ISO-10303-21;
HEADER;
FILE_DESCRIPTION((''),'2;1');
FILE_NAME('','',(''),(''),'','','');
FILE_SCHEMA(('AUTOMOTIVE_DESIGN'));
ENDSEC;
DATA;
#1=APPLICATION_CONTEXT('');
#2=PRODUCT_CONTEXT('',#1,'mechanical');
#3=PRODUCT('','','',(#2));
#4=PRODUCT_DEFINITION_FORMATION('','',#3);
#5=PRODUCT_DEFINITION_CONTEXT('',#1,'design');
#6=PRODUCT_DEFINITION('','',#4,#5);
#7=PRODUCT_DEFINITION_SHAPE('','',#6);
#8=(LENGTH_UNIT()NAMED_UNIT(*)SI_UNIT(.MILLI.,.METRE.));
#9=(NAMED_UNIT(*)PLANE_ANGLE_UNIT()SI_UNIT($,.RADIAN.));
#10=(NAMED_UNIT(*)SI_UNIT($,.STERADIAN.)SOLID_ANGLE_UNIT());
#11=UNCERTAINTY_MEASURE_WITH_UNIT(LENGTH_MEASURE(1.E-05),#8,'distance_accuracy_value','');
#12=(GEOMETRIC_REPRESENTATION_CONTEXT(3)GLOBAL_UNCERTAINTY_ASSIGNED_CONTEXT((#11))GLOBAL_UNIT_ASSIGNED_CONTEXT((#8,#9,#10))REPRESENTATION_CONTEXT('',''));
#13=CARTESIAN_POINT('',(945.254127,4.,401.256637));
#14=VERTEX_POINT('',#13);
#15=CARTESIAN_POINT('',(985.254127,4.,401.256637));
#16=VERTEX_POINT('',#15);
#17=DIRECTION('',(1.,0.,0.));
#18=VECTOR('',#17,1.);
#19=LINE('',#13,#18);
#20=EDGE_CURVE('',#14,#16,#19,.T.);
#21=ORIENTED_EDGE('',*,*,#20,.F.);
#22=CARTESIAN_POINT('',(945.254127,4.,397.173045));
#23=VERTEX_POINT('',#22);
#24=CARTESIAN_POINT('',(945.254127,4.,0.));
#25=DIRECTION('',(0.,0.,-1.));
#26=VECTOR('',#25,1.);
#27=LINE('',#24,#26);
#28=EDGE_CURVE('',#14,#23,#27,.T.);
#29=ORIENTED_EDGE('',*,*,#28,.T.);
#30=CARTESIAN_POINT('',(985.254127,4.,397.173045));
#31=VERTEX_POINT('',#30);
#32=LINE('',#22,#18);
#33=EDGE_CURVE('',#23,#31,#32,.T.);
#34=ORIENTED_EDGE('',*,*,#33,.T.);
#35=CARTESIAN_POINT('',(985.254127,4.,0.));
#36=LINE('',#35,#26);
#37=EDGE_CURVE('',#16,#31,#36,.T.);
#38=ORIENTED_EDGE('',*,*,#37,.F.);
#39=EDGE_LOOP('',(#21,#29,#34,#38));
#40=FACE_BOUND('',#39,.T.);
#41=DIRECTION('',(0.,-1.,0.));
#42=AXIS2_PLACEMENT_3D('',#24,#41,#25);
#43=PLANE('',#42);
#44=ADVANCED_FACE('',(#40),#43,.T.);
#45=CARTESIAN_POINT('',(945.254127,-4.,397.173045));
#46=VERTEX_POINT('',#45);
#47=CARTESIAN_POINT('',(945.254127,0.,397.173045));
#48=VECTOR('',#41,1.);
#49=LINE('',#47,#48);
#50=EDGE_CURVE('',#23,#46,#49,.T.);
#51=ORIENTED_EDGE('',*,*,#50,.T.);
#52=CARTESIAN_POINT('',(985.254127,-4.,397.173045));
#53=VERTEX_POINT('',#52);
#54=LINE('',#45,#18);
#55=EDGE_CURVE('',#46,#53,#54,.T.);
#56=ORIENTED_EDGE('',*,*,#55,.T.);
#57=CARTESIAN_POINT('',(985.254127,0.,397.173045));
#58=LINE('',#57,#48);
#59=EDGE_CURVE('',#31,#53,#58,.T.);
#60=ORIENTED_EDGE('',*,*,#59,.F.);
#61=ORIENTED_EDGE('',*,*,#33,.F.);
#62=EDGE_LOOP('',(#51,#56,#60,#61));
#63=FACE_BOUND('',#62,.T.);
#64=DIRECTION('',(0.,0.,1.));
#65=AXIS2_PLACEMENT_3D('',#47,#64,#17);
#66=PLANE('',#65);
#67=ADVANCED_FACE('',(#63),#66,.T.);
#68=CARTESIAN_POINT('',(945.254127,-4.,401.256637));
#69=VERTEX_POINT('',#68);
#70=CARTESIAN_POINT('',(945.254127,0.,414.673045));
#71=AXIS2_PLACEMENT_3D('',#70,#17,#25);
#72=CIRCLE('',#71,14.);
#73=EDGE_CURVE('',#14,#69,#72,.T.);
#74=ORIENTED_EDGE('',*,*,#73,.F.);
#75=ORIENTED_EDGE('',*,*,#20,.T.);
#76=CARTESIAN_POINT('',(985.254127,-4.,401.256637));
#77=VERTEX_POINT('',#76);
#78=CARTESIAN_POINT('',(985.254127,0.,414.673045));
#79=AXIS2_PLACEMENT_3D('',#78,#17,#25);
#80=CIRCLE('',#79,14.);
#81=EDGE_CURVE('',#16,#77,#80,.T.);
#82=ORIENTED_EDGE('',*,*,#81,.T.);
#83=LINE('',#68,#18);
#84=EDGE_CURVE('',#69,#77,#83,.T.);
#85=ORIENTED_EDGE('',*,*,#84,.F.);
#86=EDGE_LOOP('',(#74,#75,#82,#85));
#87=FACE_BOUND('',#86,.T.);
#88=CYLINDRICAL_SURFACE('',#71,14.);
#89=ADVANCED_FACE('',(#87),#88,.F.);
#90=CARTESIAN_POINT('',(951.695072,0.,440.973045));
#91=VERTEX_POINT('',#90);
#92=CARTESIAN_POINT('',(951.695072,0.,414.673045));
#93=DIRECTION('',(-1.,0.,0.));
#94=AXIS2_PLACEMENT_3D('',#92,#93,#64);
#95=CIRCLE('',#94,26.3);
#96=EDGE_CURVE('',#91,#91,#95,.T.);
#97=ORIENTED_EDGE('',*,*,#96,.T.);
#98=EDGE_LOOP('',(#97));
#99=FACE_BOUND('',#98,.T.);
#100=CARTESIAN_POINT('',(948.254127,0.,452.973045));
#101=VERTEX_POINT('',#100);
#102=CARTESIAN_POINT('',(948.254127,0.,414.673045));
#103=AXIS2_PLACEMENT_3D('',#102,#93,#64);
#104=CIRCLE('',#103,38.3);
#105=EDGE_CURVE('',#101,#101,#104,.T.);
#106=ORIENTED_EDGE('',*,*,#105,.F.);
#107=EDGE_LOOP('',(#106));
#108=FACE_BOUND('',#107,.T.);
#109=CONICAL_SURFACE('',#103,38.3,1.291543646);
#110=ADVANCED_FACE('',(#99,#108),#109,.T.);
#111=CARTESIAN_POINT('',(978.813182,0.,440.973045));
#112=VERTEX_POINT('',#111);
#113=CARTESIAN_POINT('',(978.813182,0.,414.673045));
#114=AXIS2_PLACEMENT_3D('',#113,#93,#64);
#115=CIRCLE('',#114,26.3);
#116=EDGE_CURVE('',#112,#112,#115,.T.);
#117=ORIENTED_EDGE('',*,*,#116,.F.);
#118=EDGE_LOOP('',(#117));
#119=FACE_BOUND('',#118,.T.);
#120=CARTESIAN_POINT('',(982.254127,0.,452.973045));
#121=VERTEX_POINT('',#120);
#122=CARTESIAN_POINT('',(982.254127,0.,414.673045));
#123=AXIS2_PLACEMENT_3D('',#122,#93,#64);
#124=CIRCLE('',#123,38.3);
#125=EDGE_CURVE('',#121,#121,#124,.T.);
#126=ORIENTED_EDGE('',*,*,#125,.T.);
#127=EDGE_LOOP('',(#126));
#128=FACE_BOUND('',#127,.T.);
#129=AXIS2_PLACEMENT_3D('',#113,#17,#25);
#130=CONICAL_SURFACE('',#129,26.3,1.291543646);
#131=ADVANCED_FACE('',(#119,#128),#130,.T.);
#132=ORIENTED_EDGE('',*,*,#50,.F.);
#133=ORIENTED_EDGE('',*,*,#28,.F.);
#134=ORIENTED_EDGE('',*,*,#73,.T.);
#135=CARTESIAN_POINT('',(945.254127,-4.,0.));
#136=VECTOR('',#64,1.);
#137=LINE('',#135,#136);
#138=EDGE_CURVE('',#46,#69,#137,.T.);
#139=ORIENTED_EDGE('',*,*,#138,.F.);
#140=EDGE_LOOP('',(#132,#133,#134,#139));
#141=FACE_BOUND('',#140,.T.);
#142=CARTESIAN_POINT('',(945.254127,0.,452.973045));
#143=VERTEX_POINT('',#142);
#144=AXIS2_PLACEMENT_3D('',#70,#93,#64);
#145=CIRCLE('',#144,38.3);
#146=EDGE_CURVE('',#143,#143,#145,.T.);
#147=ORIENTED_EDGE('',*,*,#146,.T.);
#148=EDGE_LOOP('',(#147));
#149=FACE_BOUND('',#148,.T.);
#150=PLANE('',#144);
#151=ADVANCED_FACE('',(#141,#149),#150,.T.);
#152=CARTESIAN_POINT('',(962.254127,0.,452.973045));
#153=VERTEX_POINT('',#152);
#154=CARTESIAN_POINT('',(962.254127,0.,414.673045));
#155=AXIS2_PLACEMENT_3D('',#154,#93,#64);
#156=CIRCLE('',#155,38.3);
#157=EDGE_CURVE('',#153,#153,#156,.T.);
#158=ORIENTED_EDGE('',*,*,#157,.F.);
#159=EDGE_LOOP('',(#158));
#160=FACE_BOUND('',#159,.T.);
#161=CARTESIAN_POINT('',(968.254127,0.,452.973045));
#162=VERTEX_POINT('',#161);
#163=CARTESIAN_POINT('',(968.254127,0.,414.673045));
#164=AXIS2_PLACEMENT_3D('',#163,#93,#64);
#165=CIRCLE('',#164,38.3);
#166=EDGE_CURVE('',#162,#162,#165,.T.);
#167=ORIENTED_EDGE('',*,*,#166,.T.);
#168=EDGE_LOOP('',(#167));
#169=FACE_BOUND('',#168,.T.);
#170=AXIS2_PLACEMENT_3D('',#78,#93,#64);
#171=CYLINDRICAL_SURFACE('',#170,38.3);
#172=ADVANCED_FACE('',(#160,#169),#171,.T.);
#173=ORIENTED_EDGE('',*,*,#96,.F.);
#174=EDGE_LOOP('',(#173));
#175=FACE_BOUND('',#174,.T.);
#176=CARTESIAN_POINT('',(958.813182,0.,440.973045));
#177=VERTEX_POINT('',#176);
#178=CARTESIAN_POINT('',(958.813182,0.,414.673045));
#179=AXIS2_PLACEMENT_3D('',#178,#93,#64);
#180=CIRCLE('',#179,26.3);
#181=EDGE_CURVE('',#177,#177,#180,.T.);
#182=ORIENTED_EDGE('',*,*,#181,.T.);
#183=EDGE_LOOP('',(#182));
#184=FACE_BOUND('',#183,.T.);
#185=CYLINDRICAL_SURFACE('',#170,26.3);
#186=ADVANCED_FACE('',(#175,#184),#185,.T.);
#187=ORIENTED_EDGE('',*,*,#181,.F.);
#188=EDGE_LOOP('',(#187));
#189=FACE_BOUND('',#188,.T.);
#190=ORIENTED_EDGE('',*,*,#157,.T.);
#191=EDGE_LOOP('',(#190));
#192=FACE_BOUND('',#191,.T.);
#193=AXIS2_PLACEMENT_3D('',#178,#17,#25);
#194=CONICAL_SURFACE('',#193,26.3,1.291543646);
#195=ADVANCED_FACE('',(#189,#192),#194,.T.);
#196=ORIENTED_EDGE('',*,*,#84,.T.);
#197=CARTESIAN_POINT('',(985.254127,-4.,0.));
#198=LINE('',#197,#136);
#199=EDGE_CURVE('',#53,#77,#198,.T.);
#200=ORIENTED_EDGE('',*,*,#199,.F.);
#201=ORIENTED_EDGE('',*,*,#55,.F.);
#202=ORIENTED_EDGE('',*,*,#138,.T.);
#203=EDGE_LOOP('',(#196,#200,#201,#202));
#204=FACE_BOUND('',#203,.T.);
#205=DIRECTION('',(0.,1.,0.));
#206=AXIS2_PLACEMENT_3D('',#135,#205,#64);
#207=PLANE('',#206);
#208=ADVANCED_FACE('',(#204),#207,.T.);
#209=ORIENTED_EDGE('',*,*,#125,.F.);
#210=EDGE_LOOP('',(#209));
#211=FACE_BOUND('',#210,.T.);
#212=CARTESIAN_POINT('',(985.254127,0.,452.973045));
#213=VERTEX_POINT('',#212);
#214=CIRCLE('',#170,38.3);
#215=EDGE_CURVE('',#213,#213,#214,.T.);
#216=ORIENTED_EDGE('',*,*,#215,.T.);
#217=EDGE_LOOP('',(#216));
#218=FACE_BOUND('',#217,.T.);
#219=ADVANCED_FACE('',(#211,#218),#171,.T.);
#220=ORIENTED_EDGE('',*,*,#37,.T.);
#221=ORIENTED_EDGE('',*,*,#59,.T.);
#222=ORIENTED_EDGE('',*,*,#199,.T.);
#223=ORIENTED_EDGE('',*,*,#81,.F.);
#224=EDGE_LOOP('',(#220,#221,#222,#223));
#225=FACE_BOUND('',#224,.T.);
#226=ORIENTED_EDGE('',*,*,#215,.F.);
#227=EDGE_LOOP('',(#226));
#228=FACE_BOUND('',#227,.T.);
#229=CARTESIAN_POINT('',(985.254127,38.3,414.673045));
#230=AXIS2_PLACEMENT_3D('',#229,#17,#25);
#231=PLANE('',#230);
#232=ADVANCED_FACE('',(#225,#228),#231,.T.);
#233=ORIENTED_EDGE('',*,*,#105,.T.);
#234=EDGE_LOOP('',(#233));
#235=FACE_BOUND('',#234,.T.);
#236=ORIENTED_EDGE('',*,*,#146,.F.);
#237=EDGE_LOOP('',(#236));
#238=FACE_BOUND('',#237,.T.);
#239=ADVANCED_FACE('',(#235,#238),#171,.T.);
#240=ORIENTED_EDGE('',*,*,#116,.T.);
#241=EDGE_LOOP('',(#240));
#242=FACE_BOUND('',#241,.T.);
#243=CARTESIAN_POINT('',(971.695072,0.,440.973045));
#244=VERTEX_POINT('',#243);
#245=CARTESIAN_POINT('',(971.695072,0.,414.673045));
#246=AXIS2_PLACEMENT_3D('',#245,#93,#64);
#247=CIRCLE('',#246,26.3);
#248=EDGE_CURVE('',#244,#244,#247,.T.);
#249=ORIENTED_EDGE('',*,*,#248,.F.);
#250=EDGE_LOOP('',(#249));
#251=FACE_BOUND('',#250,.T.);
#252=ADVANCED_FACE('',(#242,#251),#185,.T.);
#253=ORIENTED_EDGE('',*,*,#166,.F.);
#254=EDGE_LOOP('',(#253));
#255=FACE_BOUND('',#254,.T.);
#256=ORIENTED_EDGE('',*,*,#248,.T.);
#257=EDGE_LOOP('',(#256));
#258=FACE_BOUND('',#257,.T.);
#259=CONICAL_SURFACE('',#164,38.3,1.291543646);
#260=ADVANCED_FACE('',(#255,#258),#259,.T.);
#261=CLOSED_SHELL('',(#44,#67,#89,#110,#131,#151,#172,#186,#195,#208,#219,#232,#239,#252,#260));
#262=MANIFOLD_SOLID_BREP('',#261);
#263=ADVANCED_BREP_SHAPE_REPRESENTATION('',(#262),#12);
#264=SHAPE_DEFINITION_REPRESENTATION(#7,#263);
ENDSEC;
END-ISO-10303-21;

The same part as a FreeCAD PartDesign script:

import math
import FreeCAD as App
import Part
import Sketcher
Q = App.Units.Quantity


def add_polygon(sketch, points):
    """Adds a closed chain of lines whose ends are joined by coincident constraints."""
    first, n = sketch.GeometryCount, len(points)
    for a, b in zip(points, points[1:] + points[:1]):
        sketch.addGeometry(Part.LineSegment(App.Vector(*a, 0), App.Vector(*b, 0)), False)
    for i in range(n):
        sketch.addConstraint(Sketcher.Constraint("Coincident", first + i, 2, first + (i + 1) % n, 1))

doc = App.newDocument("Part")
body = doc.addObject("PartDesign::Body", "Body")

sketch1 = body.newObject("Sketcher::SketchObject", "Sketch")
sketch1.AttachmentSupport = (doc.getObject("XY_Plane"), [""])
sketch1.MapMode = "FlatFace"
sketch1.AttachmentOffset = App.Placement(App.Vector(0, 0, 414.673045), App.Rotation())
add_polygon(sketch1, [(985.3, 38.3), (985.3, 0), (945.3, 0), (945.3, 38.3), (948.3, 38.3), (951.7, 26.3), (958.8, 26.3), (962.3, 38.3), (968.3, 38.3), (971.7, 26.3), (978.8, 26.3), (982.3, 38.3)])
sketch1.addConstraint([
    Sketcher.Constraint("Vertical", 0),
    Sketcher.Constraint("Horizontal", 1),
    Sketcher.Constraint("Vertical", 2),
    Sketcher.Constraint("Horizontal", 3),
    Sketcher.Constraint("Horizontal", 5),
    Sketcher.Constraint("Horizontal", 7),
    Sketcher.Constraint("Horizontal", 9),
    Sketcher.Constraint("Horizontal", 11),
    Sketcher.Constraint("PointOnObject", 0, 2, -1),
    Sketcher.Constraint("Parallel", 4, 8),
    Sketcher.Constraint("Parallel", 6, 10),
    Sketcher.Constraint("Horizontal", 3, 2, 6, 2),
    Sketcher.Constraint("Horizontal", 5, 2, 8, 2),
    Sketcher.Constraint("Horizontal", 7, 2, 10, 2),
    Sketcher.Constraint("Equal", 5, 9),
    Sketcher.Constraint("Equal", 3, 11),
    Sketcher.Constraint("Equal", 4, 6),
    Sketcher.Constraint("DistanceX", 1, 2, 1, 1, Q("40 mm")),
    Sketcher.Constraint("DistanceX", 3, 1, 3, 2, Q("3 mm")),
    Sketcher.Constraint("DistanceX", 7, 1, 7, 2, Q("6 mm")),
    Sketcher.Constraint("Angle", 4, Q("-74 deg")),
    Sketcher.Constraint("DistanceY", 0, 2, 0, 1, Q("38.3 mm")),
    Sketcher.Constraint("DistanceY", 4, 2, 3, 2, Q("12 mm")),
    Sketcher.Constraint("DistanceX", -1, 1, 4, 2, Q("951.695072 mm")),
])
revolution = body.newObject("PartDesign::Revolution", "Revolution")
revolution.Profile = sketch1
revolution.ReferenceAxis = (sketch1, ["H_Axis"])
revolution.Angle = 360

sketch2 = body.newObject("Sketcher::SketchObject", "Sketch001")
sketch2.AttachmentSupport = (doc.getObject("YZ_Plane"), [""])
sketch2.MapMode = "FlatFace"
sketch2.AttachmentOffset = App.Placement(App.Vector(0, 0, 945.254127), App.Rotation())
sketch2.addGeometry([
    Part.LineSegment(App.Vector(3, 405.7, 0), App.Vector(3, 402.2, 0)),
    Part.LineSegment(App.Vector(3, 402.2, 0), App.Vector(-3, 402.2, 0)),
    Part.LineSegment(App.Vector(-3, 402.2, 0), App.Vector(-3, 405.7, 0)),
    Part.ArcOfCircle(Part.Circle(App.Vector(0, 414.7, 0), App.Vector(0, 0, 1), 9.5), math.radians(-72), math.radians(252)),
], False)
sketch2.addConstraint([
    Sketcher.Constraint("Coincident", 0, 2, 1, 1),
    Sketcher.Constraint("Coincident", 1, 2, 2, 1),
    Sketcher.Constraint("Coincident", 2, 2, 3, 2),
    Sketcher.Constraint("Coincident", 3, 1, 0, 1),
    Sketcher.Constraint("Vertical", 0),
    Sketcher.Constraint("Horizontal", 1),
    Sketcher.Constraint("Vertical", 2),
    Sketcher.Constraint("Symmetric", 2, 2, 3, 1, -2),
    Sketcher.Constraint("Radius", 3, Q("9.5 mm")),
    Sketcher.Constraint("DistanceX", 1, 2, 1, 1, Q("6 mm")),
    Sketcher.Constraint("DistanceY", 0, 2, 3, 3, Q("12.5 mm")),
    Sketcher.Constraint("DistanceY", -1, 1, 3, 3, Q("414.673045 mm")),
])
pocket1 = body.newObject("PartDesign::Pocket", "Pocket")
pocket1.Profile = sketch2
pocket1.Type = "ThroughAll"
pocket1.Reversed = True

sketch3 = body.newObject("Sketcher::SketchObject", "Sketch002")
sketch3.AttachmentSupport = (doc.getObject("YZ_Plane"), [""])
sketch3.MapMode = "FlatFace"
sketch3.AttachmentOffset = App.Placement(App.Vector(0, 0, 985.254127), App.Rotation())
sketch3.addGeometry(Part.Circle(App.Vector(0, 415, 0), App.Vector(0, 0, 1), 14), False)
sketch3.addConstraint([
    Sketcher.Constraint("PointOnObject", 0, 3, -2),
    Sketcher.Constraint("Diameter", 0, Q("28 mm")),
    Sketcher.Constraint("DistanceY", -1, 1, 0, 3, Q("414.673045 mm")),
])
pocket2 = body.newObject("PartDesign::Pocket", "Pocket001")
pocket2.Profile = sketch3
pocket2.Length = 40

sketch4 = body.newObject("Sketcher::SketchObject", "Sketch003")
sketch4.AttachmentSupport = (doc.getObject("YZ_Plane"), [""])
sketch4.MapMode = "FlatFace"
sketch4.AttachmentOffset = App.Placement(App.Vector(0, 0, 985.254127), App.Rotation())
sketch4.addGeometry([
    Part.LineSegment(App.Vector(-4, 397.2, 0), App.Vector(4, 397.2, 0)),
    Part.LineSegment(App.Vector(4, 397.2, 0), App.Vector(4, 401.3, 0)),
    Part.ArcOfCircle(Part.Circle(App.Vector(0, 414.7, 0), App.Vector(0, 0, 1), 14), math.radians(-90), math.radians(-73.4)),
    Part.ArcOfCircle(Part.Circle(App.Vector(0, 414.7, 0), App.Vector(0, 0, 1), 14), math.radians(-106.6), math.radians(-90)),
    Part.LineSegment(App.Vector(-4, 401.3, 0), App.Vector(-4, 397.2, 0)),
], False)
sketch4.addConstraint([
    Sketcher.Constraint("Coincident", 0, 2, 1, 1),
    Sketcher.Constraint("Coincident", 1, 2, 2, 2),
    Sketcher.Constraint("Tangent", 2, 1, 3, 2),
    Sketcher.Constraint("Coincident", 3, 1, 4, 1),
    Sketcher.Constraint("Coincident", 4, 2, 0, 1),
    Sketcher.Constraint("Horizontal", 0),
    Sketcher.Constraint("Vertical", 1),
    Sketcher.Constraint("Vertical", 4),
    Sketcher.Constraint("Equal", 2, 3),
    Sketcher.Constraint("Symmetric", 1, 2, 3, 1, -2),
    Sketcher.Constraint("PointOnObject", 2, 1, -2),
    Sketcher.Constraint("Radius", 2, Q("14 mm")),
    Sketcher.Constraint("DistanceX", 0, 1, 0, 2, Q("8 mm")),
    Sketcher.Constraint("DistanceY", 0, 2, 3, 3, Q("17.5 mm")),
    Sketcher.Constraint("DistanceY", -1, 1, 2, 3, Q("414.673045 mm")),
])
pocket3 = body.newObject("PartDesign::Pocket", "Pocket002")
pocket3.Profile = sketch4
pocket3.Length = 40

doc.recompute()
